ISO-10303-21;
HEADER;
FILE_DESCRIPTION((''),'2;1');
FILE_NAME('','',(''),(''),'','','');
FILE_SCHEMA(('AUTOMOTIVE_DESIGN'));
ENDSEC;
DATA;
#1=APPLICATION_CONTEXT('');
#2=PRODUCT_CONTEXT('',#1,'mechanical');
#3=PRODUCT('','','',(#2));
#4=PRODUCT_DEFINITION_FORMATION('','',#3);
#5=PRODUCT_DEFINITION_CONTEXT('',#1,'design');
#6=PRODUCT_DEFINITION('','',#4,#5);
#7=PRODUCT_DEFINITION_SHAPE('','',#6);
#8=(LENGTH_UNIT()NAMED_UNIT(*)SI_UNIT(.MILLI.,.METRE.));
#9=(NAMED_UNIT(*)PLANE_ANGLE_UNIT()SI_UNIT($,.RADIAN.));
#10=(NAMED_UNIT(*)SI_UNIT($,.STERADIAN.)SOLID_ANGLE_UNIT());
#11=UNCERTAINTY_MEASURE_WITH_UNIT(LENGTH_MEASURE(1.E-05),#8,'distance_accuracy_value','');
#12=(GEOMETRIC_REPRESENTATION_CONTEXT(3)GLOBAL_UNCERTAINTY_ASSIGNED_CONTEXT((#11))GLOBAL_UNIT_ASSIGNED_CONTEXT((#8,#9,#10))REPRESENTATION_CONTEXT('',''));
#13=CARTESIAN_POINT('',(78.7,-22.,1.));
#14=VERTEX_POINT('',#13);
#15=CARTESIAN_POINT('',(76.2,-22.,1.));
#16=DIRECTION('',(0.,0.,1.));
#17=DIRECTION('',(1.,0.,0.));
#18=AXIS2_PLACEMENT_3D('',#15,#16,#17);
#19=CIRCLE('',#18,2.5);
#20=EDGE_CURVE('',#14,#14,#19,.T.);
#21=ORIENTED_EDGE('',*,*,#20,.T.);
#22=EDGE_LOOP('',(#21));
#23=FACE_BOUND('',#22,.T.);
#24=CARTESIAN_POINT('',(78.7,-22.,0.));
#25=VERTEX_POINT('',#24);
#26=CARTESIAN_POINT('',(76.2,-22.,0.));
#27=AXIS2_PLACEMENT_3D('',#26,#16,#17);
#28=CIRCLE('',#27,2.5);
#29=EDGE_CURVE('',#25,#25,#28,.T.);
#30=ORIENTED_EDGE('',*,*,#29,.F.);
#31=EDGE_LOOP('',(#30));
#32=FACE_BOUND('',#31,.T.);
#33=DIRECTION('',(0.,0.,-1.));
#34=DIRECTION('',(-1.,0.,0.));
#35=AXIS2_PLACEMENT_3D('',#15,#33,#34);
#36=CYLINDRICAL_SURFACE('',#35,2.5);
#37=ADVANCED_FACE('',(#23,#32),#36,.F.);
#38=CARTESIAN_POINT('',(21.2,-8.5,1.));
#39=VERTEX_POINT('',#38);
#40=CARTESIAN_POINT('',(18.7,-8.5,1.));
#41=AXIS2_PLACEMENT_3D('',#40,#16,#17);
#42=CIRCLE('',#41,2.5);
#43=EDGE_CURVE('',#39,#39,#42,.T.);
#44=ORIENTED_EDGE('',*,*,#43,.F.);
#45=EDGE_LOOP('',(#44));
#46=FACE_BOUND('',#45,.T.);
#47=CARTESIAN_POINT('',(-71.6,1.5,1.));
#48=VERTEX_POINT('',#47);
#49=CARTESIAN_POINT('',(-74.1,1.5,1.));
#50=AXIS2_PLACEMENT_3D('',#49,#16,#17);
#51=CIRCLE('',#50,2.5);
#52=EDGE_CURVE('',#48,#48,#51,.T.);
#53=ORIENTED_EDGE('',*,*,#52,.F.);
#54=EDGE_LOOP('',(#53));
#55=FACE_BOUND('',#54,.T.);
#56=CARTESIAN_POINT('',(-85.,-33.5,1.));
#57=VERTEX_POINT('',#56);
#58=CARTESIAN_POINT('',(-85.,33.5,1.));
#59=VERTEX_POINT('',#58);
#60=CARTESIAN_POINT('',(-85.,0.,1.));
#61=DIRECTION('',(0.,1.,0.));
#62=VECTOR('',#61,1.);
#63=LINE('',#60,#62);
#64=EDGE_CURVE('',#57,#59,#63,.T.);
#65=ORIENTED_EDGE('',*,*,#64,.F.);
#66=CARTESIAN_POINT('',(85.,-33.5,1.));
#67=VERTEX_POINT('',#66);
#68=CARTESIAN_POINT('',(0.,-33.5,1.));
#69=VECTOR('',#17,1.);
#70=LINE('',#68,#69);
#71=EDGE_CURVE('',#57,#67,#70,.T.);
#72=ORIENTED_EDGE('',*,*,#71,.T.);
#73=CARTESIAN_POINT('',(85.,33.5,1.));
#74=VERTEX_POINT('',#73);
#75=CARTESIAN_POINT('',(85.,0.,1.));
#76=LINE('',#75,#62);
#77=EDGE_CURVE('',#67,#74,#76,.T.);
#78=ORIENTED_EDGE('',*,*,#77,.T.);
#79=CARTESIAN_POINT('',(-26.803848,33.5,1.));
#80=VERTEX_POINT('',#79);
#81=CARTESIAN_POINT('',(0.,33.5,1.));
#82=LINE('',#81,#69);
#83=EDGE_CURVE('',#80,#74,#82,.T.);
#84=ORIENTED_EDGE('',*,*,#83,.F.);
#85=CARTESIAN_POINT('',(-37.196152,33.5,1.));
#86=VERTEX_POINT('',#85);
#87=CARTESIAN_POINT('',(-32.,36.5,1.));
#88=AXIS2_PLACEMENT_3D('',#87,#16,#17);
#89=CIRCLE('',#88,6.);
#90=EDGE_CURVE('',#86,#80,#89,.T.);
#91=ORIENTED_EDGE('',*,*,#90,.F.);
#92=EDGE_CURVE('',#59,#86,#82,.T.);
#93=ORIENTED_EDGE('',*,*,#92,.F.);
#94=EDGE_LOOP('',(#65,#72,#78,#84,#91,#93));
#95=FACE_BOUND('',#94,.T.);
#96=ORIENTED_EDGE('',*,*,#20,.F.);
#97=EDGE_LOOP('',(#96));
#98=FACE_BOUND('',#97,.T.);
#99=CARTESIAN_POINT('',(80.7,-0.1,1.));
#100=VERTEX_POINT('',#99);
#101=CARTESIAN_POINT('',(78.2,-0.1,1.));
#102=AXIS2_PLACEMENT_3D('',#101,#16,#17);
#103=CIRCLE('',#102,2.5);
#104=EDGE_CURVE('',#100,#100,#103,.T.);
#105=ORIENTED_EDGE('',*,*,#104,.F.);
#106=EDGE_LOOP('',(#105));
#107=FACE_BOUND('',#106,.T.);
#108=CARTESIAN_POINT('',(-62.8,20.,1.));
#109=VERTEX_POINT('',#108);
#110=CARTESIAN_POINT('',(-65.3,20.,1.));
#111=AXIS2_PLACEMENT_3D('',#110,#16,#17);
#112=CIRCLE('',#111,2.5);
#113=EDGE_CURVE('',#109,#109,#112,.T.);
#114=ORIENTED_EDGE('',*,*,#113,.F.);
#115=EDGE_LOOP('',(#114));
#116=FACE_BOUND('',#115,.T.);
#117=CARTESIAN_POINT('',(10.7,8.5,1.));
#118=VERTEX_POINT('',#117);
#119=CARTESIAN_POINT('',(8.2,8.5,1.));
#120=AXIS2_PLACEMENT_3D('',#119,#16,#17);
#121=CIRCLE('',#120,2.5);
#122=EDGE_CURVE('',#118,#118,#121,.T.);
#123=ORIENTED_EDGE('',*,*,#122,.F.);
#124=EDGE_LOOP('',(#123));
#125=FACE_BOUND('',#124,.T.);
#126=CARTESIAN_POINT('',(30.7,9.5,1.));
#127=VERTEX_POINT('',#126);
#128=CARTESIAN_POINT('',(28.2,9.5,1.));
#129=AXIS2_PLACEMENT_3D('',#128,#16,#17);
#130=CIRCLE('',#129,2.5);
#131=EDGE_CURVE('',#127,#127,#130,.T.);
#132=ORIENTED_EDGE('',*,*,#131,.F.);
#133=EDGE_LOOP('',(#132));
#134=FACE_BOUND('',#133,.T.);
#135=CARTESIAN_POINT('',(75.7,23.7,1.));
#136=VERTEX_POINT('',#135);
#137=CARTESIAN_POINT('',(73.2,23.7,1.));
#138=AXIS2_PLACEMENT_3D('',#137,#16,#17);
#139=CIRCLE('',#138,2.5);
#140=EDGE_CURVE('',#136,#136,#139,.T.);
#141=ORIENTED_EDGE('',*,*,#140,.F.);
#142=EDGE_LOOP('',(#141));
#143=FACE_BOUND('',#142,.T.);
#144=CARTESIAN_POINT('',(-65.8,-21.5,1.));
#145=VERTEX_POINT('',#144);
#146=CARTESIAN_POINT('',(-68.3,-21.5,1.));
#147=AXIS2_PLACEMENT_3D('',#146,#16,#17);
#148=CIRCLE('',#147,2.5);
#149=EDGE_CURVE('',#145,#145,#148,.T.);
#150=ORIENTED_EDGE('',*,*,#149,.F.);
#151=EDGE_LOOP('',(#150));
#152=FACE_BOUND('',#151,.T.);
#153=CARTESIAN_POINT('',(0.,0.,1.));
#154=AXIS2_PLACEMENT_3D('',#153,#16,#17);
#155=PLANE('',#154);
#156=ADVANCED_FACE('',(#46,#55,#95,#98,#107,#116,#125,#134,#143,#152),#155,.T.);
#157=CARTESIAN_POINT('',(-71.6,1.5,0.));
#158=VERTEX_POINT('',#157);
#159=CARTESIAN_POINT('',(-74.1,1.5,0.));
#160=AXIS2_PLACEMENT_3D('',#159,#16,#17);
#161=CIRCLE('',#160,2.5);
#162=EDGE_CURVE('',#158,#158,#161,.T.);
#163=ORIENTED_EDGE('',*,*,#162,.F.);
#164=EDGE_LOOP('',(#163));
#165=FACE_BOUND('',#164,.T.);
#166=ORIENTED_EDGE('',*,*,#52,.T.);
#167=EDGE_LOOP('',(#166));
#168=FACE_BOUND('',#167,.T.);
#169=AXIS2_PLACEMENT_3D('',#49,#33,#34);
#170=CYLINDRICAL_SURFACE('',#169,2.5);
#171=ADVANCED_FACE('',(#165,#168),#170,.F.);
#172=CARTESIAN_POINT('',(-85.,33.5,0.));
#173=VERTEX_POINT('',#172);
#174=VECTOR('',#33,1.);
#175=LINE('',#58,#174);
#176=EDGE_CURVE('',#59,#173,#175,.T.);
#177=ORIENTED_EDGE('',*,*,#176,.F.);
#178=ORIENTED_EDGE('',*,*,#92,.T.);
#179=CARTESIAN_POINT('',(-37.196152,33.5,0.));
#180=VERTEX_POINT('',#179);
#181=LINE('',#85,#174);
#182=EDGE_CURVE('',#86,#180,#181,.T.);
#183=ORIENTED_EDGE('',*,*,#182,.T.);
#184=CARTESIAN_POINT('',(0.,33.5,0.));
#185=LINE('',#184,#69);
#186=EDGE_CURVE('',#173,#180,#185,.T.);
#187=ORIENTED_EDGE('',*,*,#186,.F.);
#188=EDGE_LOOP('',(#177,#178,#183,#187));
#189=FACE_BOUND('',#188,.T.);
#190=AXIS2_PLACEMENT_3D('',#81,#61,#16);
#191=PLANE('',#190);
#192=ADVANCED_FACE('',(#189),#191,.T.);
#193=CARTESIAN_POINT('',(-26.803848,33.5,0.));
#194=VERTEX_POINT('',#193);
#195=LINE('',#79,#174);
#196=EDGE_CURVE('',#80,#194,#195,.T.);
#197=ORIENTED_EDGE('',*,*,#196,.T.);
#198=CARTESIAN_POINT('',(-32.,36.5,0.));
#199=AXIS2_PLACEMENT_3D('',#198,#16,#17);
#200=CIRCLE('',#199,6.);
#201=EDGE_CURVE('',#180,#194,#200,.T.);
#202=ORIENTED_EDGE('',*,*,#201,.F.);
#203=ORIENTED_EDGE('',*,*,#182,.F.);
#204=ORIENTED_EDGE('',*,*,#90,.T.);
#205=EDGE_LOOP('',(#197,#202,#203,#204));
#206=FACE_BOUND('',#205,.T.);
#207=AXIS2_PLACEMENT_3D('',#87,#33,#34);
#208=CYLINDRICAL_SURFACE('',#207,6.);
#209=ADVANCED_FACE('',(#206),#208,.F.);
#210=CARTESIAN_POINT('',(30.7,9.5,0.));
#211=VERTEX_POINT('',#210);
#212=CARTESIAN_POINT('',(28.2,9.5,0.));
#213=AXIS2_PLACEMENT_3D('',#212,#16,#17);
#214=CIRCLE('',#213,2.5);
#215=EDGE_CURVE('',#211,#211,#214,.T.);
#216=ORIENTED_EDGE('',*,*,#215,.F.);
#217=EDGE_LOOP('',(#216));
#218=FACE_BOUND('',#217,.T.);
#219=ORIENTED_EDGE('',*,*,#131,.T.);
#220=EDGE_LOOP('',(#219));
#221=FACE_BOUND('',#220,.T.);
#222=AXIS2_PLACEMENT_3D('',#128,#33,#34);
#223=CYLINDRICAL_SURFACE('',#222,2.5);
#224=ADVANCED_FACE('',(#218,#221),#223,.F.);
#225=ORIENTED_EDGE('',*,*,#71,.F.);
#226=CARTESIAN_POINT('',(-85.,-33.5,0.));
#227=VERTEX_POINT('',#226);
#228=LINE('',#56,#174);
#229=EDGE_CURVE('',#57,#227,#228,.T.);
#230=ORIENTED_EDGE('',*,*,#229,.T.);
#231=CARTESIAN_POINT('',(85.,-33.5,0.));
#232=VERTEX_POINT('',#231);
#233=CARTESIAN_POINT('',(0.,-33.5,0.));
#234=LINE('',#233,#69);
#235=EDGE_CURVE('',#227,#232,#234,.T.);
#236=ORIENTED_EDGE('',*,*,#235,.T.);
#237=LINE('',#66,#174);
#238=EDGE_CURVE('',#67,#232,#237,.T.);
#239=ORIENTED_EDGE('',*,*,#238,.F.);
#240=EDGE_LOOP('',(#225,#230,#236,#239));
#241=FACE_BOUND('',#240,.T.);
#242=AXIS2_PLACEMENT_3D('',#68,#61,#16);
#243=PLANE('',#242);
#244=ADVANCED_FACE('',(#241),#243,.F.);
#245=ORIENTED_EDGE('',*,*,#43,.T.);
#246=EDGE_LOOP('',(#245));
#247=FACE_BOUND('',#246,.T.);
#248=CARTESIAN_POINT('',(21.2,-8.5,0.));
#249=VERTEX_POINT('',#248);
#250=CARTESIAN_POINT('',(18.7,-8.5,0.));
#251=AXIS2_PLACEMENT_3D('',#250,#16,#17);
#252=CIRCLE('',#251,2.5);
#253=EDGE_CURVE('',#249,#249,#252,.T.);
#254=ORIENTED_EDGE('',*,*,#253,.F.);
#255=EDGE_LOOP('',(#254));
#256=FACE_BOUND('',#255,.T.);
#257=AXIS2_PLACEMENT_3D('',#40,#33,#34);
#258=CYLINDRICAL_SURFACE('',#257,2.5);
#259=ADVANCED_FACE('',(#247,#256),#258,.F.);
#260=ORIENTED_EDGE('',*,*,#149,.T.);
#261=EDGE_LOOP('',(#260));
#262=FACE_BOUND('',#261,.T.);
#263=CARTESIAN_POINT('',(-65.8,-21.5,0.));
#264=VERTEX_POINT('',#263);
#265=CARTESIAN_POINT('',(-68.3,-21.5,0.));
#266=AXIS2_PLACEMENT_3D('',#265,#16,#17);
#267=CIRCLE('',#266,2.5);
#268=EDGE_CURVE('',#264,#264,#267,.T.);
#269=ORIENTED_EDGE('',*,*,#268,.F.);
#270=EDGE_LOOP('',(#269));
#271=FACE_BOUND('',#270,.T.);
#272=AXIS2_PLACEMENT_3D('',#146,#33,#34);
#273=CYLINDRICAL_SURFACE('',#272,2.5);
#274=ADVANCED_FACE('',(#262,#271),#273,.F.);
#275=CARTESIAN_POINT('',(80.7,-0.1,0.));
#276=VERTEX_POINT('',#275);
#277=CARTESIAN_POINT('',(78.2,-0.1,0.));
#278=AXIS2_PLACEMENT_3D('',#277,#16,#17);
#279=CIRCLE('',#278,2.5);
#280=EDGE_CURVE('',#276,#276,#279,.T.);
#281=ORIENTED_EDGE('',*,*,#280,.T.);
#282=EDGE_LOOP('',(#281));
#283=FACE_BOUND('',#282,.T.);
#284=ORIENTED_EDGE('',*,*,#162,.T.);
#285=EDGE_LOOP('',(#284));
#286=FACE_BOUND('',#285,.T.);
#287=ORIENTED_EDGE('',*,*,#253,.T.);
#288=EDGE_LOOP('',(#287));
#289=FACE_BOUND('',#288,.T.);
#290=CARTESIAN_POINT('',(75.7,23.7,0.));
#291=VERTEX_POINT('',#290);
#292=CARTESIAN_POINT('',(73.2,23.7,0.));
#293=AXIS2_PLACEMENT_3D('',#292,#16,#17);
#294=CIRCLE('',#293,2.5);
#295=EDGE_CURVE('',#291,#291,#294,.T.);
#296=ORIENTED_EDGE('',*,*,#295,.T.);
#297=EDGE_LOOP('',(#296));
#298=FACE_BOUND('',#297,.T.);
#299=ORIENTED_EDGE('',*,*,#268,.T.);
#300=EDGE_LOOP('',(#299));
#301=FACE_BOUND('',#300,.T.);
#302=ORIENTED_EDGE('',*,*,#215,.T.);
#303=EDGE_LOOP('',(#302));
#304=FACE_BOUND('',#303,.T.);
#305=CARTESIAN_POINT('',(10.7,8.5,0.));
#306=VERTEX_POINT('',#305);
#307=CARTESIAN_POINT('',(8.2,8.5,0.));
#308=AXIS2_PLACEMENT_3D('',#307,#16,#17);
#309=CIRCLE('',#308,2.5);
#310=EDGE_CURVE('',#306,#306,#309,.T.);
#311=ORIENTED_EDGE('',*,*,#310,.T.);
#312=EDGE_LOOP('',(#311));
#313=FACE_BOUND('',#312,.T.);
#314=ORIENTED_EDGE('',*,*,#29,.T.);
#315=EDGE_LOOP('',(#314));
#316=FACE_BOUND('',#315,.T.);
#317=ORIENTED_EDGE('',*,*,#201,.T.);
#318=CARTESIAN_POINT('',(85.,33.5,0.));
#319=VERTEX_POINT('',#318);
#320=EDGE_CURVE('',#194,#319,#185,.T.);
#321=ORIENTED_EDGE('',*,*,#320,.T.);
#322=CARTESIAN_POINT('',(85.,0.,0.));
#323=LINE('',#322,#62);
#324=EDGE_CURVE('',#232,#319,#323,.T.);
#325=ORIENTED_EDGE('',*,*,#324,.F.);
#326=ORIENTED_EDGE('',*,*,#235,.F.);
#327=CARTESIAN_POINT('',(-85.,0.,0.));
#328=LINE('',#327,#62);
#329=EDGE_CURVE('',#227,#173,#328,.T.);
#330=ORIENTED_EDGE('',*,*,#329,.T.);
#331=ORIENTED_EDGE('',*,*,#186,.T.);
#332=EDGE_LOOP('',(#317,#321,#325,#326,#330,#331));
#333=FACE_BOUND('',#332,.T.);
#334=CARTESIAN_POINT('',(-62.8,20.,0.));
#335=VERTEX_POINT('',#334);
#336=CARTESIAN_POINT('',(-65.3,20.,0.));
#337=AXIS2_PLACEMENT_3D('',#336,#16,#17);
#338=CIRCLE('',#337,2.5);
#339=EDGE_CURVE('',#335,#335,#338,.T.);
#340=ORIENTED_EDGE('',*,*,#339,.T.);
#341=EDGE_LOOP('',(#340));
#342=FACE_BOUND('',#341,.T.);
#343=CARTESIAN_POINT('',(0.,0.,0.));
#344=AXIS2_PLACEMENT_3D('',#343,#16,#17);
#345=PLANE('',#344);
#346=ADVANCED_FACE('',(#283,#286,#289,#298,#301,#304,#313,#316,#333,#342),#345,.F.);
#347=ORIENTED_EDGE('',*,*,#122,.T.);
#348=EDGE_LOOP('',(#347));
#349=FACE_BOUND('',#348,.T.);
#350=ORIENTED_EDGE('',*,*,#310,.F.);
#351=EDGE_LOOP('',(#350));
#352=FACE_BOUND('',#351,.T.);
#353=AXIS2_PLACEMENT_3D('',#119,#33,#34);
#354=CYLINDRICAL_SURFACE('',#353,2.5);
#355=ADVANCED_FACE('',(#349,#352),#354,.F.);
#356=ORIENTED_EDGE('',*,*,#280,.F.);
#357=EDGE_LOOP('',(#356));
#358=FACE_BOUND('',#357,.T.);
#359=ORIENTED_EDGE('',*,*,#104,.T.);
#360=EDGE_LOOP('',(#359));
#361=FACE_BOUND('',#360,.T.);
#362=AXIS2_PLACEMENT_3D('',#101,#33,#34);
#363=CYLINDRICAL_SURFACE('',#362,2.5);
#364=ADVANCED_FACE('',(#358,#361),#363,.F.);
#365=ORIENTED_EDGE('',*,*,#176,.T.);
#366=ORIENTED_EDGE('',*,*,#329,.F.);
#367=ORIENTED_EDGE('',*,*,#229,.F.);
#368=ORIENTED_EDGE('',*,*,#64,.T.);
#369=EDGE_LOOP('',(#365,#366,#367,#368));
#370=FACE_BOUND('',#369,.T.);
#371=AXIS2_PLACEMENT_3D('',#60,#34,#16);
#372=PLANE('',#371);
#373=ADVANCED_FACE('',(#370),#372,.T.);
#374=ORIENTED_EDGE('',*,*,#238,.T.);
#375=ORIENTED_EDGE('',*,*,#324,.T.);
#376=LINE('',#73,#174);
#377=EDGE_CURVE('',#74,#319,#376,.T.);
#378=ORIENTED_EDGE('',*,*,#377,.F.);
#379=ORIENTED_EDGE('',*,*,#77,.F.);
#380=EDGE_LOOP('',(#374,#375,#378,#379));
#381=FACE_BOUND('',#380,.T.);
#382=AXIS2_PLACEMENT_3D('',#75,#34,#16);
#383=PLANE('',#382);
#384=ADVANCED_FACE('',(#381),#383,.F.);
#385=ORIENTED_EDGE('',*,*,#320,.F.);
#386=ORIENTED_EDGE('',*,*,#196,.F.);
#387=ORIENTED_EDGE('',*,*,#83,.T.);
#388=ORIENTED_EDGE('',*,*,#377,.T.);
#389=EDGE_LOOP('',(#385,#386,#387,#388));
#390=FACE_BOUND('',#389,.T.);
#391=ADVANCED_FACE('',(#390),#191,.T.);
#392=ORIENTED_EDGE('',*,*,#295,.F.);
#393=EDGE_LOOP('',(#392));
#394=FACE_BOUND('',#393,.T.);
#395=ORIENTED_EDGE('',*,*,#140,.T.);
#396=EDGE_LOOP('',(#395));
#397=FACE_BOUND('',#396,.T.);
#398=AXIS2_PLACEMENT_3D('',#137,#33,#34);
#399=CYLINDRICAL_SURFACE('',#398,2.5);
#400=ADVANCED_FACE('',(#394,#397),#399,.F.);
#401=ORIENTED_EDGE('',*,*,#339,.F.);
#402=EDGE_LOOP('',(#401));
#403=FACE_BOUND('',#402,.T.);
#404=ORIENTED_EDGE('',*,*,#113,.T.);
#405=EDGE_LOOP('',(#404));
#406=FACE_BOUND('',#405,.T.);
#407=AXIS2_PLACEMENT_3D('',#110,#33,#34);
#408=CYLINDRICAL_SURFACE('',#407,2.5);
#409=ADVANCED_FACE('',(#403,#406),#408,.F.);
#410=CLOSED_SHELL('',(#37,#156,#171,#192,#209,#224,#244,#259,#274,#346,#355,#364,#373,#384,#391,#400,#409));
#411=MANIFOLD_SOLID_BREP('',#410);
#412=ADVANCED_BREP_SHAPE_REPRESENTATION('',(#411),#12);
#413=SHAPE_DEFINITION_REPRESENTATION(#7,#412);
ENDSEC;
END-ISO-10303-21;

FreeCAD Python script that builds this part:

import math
import FreeCAD as App
import Part
import Sketcher
from FreeCAD import Vector
Q = App.Units.Quantity

doc = App.newDocument("Part")
body = doc.addObject("PartDesign::Body", "Body")

sketch1 = doc.addObject("Sketcher::SketchObject", "Sketch")
body.addObject(sketch1)
sketch1.AttachmentSupport = (doc.XY_Plane, [""])
sketch1.MapMode = "FlatFace"
sketch1.addGeometry(Part.ArcOfCircle(Part.Circle(Vector(-32, 36.5, 0), Vector(0, 0, 1), 6), math.radians(-90), math.radians(-30)), False)
sketch1.addGeometry(Part.ArcOfCircle(Part.Circle(Vector(-32, 36.5, 0), Vector(0, 0, 1), 6), math.radians(-150), math.radians(-90)), False)
sketch1.addGeometry(Part.LineSegment(Vector(-37.196152, 33.5, 0), Vector(-85, 33.5, 0)), False)
sketch1.addGeometry(Part.LineSegment(Vector(-85, 33.5, 0), Vector(-85, -33.5, 0)), False)
sketch1.addGeometry(Part.LineSegment(Vector(-85, -33.5, 0), Vector(85, -33.5, 0)), False)
sketch1.addGeometry(Part.LineSegment(Vector(85, -33.5, 0), Vector(85, 33.5, 0)), False)
sketch1.addGeometry(Part.LineSegment(Vector(85, 33.5, 0), Vector(-26.803848, 33.5, 0)), False)
sketch1.addGeometry(Part.Circle(Vector(-68.3, -21.5, 0), Vector(0, 0, 1), 2.5), False)
sketch1.addGeometry(Part.Circle(Vector(76.2, -22, 0), Vector(0, 0, 1), 2.5), False)
sketch1.addGeometry(Part.Circle(Vector(18.7, -8.5, 0), Vector(0, 0, 1), 2.5), False)
sketch1.addGeometry(Part.Circle(Vector(78.2, -0.1, 0), Vector(0, 0, 1), 2.5), False)
sketch1.addGeometry(Part.Circle(Vector(-74.1, 1.5, 0), Vector(0, 0, 1), 2.5), False)
sketch1.addGeometry(Part.Circle(Vector(-65.3, 20, 0), Vector(0, 0, 1), 2.5), False)
sketch1.addGeometry(Part.Circle(Vector(8.2, 8.5, 0), Vector(0, 0, 1), 2.5), False)
sketch1.addGeometry(Part.Circle(Vector(28.2, 9.5, 0), Vector(0, 0, 1), 2.5), False)
sketch1.addGeometry(Part.Circle(Vector(73.2, 23.7, 0), Vector(0, 0, 1), 2.5), False)
sketch1.addConstraint(Sketcher.Constraint("Tangent", 0, 1, 1, 2))
sketch1.addConstraint(Sketcher.Constraint("Coincident", 1, 1, 2, 1))
sketch1.addConstraint(Sketcher.Constraint("Coincident", 2, 2, 3, 1))
sketch1.addConstraint(Sketcher.Constraint("Coincident", 3, 2, 4, 1))
sketch1.addConstraint(Sketcher.Constraint("Coincident", 4, 2, 5, 1))
sketch1.addConstraint(Sketcher.Constraint("Coincident", 5, 2, 6, 1))
sketch1.addConstraint(Sketcher.Constraint("Coincident", 6, 2, 0, 2))
sketch1.addConstraint(Sketcher.Constraint("Horizontal", 2))
sketch1.addConstraint(Sketcher.Constraint("Vertical", 3))
sketch1.addConstraint(Sketcher.Constraint("Horizontal", 4))
sketch1.addConstraint(Sketcher.Constraint("Vertical", 5))
sketch1.addConstraint(Sketcher.Constraint("Horizontal", 6))
sketch1.addConstraint(Sketcher.Constraint("Equal", 0, 1))
sketch1.addConstraint(Sketcher.Constraint("Equal", 7, 8))
sketch1.addConstraint(Sketcher.Constraint("Equal", 8, 9))
sketch1.addConstraint(Sketcher.Constraint("Equal", 9, 10))
sketch1.addConstraint(Sketcher.Constraint("Equal", 10, 11))
sketch1.addConstraint(Sketcher.Constraint("Equal", 11, 12))
sketch1.addConstraint(Sketcher.Constraint("Equal", 12, 13))
sketch1.addConstraint(Sketcher.Constraint("Equal", 13, 14))
sketch1.addConstraint(Sketcher.Constraint("Equal", 14, 15))
sketch1.addConstraint(Sketcher.Constraint("Symmetric", 2, 2, 4, 2, -1, 1))
sketch1.addConstraint(Sketcher.Constraint("Horizontal", 2, 2, 5, 2))
sketch1.addConstraint(Sketcher.Constraint("Vertical", 1, 3, 0, 1))
sketch1.addConstraint(Sketcher.Constraint("Diameter", 7, Q("5 mm")))
sketch1.addConstraint(Sketcher.Constraint("Radius", 0, Q("6 mm")))
sketch1.addConstraint(Sketcher.Constraint("DistanceX", 4, 1, 4, 2, Q("170 mm")))
sketch1.addConstraint(Sketcher.Constraint("DistanceY", 3, 2, 3, 1, Q("67 mm")))
sketch1.addConstraint(Sketcher.Constraint("DistanceX", 0, 3, -1, 1, Q("32 mm")))
sketch1.addConstraint(Sketcher.Constraint("DistanceY", 8, 3, -1, 1, Q("22 mm")))
sketch1.addConstraint(Sketcher.Constraint("DistanceY", -1, 1, 12, 3, Q("20 mm")))
sketch1.addConstraint(Sketcher.Constraint("DistanceY", 7, 3, 1, 3, Q("58 mm")))
sketch1.addConstraint(Sketcher.Constraint("DistanceY", 9, 3, 0, 3, Q("45 mm")))
sketch1.addConstraint(Sketcher.Constraint("DistanceX", 7, 3, 9, 3, Q("87 mm")))
sketch1.addConstraint(Sketcher.Constraint("DistanceX", 8, 3, 10, 3, Q("2 mm")))
sketch1.addConstraint(Sketcher.Constraint("DistanceY", 7, 3, 11, 3, Q("23 mm")))
sketch1.addConstraint(Sketcher.Constraint("DistanceX", 7, 3, 12, 3, Q("3 mm")))
sketch1.addConstraint(Sketcher.Constraint("DistanceY", 9, 3, 13, 3, Q("17 mm")))
sketch1.addConstraint(Sketcher.Constraint("DistanceX", 13, 3, 10, 3, Q("70 mm")))
sketch1.addConstraint(Sketcher.Constraint("DistanceX", 13, 3, 14, 3, Q("20 mm")))
sketch1.addConstraint(Sketcher.Constraint("DistanceY", 13, 3, 14, 3, Q("1 mm")))
sketch1.addConstraint(Sketcher.Constraint("DistanceX", 15, 3, 10, 3, Q("5 mm")))
sketch1.addConstraint(Sketcher.Constraint("DistanceY", 1, 1, 1, 3, Q("3 mm")))
sketch1.addConstraint(Sketcher.Constraint("DistanceX", 7, 3, -1, 1, Q("68.3 mm")))
sketch1.addConstraint(Sketcher.Constraint("DistanceX", -1, 1, 8, 3, Q("76.2 mm")))
sketch1.addConstraint(Sketcher.Constraint("DistanceY", 10, 3, -1, 1, Q("0.1 mm")))
sketch1.addConstraint(Sketcher.Constraint("DistanceX", 11, 3, -1, 1, Q("74.1 mm")))
sketch1.addConstraint(Sketcher.Constraint("DistanceY", -1, 1, 15, 3, Q("23.7 mm")))
pad1 = doc.addObject("PartDesign::Pad", "Pad")
body.addObject(pad1)
pad1.Profile = sketch1
pad1.Length = 1

doc.recompute()
